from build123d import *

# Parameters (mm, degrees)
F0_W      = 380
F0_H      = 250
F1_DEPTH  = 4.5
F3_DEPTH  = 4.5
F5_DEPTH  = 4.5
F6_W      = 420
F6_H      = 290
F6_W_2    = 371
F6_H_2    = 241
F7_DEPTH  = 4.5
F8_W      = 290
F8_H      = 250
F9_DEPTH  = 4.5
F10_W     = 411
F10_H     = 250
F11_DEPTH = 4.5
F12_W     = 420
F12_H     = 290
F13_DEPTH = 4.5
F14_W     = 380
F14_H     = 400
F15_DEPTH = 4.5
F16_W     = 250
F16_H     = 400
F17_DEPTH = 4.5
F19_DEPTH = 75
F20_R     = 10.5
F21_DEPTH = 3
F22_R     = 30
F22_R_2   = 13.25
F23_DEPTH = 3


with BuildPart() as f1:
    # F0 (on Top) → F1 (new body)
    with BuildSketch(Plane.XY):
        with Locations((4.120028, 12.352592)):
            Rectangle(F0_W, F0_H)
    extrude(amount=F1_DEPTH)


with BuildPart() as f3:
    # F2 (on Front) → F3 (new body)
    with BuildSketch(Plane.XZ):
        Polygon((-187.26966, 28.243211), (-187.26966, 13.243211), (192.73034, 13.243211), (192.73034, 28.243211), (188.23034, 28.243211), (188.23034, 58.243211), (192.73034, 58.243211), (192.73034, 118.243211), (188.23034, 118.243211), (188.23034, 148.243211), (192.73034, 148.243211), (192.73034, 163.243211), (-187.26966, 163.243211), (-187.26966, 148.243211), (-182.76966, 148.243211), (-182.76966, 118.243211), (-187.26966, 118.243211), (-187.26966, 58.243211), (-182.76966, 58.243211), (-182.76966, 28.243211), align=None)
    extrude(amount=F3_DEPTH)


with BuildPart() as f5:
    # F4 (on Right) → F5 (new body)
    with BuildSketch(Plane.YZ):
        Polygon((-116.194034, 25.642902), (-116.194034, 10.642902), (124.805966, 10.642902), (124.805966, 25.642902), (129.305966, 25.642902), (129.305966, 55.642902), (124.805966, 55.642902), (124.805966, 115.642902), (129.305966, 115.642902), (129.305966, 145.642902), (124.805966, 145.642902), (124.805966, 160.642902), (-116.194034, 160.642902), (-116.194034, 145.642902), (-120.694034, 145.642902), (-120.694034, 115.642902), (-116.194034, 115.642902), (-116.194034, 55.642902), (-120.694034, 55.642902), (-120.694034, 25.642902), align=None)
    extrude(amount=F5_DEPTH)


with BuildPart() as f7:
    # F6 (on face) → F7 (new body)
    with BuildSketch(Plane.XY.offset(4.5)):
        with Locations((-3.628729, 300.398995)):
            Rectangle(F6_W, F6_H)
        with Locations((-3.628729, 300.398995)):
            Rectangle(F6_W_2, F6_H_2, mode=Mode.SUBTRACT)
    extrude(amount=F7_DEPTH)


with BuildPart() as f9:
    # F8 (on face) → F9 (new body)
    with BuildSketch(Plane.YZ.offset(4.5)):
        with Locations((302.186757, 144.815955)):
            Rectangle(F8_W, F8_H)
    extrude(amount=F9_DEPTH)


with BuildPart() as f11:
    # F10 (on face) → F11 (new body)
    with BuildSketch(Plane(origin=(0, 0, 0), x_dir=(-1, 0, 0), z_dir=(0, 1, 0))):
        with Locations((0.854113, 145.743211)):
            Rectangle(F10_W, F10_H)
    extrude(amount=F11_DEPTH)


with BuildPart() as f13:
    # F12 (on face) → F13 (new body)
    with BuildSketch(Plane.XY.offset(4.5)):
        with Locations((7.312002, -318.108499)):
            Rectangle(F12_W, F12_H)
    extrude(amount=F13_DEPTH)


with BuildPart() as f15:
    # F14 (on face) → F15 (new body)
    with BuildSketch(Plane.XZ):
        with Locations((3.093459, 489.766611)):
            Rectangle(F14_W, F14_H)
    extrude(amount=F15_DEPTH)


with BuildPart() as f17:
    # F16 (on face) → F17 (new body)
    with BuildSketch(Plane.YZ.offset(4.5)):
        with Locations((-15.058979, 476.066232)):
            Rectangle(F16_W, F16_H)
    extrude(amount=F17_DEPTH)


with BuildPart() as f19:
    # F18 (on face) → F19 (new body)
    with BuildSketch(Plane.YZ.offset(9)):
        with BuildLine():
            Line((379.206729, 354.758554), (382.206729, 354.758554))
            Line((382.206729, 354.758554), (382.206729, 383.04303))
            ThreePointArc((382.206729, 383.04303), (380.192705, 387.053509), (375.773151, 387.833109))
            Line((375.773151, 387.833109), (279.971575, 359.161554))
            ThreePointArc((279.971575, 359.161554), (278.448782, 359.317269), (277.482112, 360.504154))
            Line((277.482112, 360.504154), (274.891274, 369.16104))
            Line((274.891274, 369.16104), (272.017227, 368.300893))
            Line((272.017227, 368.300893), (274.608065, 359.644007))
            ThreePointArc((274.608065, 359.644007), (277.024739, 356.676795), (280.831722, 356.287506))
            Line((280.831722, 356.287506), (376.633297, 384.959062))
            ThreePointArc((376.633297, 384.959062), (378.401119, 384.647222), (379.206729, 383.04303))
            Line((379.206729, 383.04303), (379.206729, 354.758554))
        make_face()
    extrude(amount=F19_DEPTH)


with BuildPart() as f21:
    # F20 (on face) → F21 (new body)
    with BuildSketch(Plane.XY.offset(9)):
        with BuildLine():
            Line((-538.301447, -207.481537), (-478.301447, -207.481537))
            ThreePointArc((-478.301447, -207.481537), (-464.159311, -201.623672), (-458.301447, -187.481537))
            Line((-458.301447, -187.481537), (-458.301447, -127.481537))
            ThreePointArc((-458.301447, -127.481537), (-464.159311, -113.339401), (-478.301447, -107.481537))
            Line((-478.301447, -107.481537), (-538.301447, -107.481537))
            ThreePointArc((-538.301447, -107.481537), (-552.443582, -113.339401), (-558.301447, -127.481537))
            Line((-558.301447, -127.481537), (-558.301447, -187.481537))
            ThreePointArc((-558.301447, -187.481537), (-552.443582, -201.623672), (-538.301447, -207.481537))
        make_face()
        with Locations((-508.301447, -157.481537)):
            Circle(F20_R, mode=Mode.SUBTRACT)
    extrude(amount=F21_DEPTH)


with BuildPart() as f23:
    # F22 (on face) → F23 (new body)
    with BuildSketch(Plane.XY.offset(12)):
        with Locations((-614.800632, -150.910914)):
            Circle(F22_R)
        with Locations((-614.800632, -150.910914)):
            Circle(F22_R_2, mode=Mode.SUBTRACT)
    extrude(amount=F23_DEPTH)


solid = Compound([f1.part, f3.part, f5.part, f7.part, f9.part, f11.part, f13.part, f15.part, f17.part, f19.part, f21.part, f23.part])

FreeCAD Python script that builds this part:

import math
import FreeCAD as App
import Part
import Sketcher
from FreeCAD import Vector
Q = App.Units.Quantity

doc = App.newDocument("Part")
body = doc.addObject("PartDesign::Body", "Body")

# Sketch on XY plane
sketch1 = body.newObject("Sketcher::SketchObject", "Sketch")
sketch1.AttachmentSupport = (doc.getObject("XY_Plane"), [""])
sketch1.MapMode = "FlatFace"
sketch1.addGeometry([
    Part.LineSegment(Vector(-186, 137, 0), Vector(-186, -113, 0)),
    Part.LineSegment(Vector(-186, -113, 0), Vector(194, -113, 0)),
    Part.LineSegment(Vector(194, -113, 0), Vector(194, 137, 0)),
    Part.LineSegment(Vector(194, 137, 0), Vector(-186, 137, 0)),
], False)
sketch1.addConstraint([
    Sketcher.Constraint("Coincident", 0, 2, 1, 1),
    Sketcher.Constraint("Coincident", 1, 2, 2, 1),
    Sketcher.Constraint("Coincident", 2, 2, 3, 1),
    Sketcher.Constraint("Coincident", 3, 2, 0, 1),
    Sketcher.Constraint("Vertical", 0),
    Sketcher.Constraint("Horizontal", 1),
    Sketcher.Constraint("Vertical", 2),
    Sketcher.Constraint("Horizontal", 3),
    Sketcher.Constraint("DistanceX", 1, 1, 1, 2, Q("380 mm")),
    Sketcher.Constraint("DistanceY", 0, 2, 0, 1, Q("250 mm")),
    Sketcher.Constraint("DistanceY", 0, 2, -1, 1, Q("112.647408 mm")),
    Sketcher.Constraint("DistanceX", 0, 2, -1, 1, Q("185.879972 mm")),
])
pad1 = body.newObject("PartDesign::Pad", "Pad")
pad1.Profile = sketch1
pad1.Length = 4.5
body2 = doc.addObject("PartDesign::Body", "Body001")

# Sketch on XZ plane
sketch2 = body2.newObject("Sketcher::SketchObject", "Sketch001")
sketch2.AttachmentSupport = (doc.getObject("XZ_Plane001"), [""])
sketch2.MapMode = "FlatFace"
sketch2.addGeometry([
    Part.LineSegment(Vector(-187.3, 28.2, 0), Vector(-187.3, 13.2, 0)),  # 0
    Part.LineSegment(Vector(-187.3, 13.2, 0), Vector(192.7, 13.2, 0)),  # 1
    Part.LineSegment(Vector(192.7, 13.2, 0), Vector(192.7, 28.2, 0)),  # 2
    Part.LineSegment(Vector(192.7, 28.2, 0), Vector(188.2, 28.2, 0)),  # 3
    Part.LineSegment(Vector(188.2, 28.2, 0), Vector(188.2, 58.2, 0)),  # 4
    Part.LineSegment(Vector(188.2, 58.2, 0), Vector(192.7, 58.2, 0)),  # 5
    Part.LineSegment(Vector(192.7, 58.2, 0), Vector(192.7, 118.2, 0)),  # 6
    Part.LineSegment(Vector(192.7, 118.2, 0), Vector(188.2, 118.2, 0)),  # 7
    Part.LineSegment(Vector(188.2, 118.2, 0), Vector(188.2, 148.2, 0)),  # 8
    Part.LineSegment(Vector(188.2, 148.2, 0), Vector(192.7, 148.2, 0)),  # 9
    Part.LineSegment(Vector(192.7, 148.2, 0), Vector(192.7, 163.2, 0)),  # 10
    Part.LineSegment(Vector(192.7, 163.2, 0), Vector(-187.3, 163.2, 0)),  # 11
    Part.LineSegment(Vector(-187.3, 163.2, 0), Vector(-187.3, 148.2, 0)),  # 12
    Part.LineSegment(Vector(-187.3, 148.2, 0), Vector(-182.8, 148.2, 0)),  # 13
    Part.LineSegment(Vector(-182.8, 148.2, 0), Vector(-182.8, 118.2, 0)),  # 14
    Part.LineSegment(Vector(-182.8, 118.2, 0), Vector(-187.3, 118.2, 0)),  # 15
    Part.LineSegment(Vector(-187.3, 118.2, 0), Vector(-187.3, 58.2, 0)),  # 16
    Part.LineSegment(Vector(-187.3, 58.2, 0), Vector(-182.8, 58.2, 0)),  # 17
    Part.LineSegment(Vector(-182.8, 58.2, 0), Vector(-182.8, 28.2, 0)),  # 18
    Part.LineSegment(Vector(-182.8, 28.2, 0), Vector(-187.3, 28.2, 0)),  # 19
], False)
sketch2.addConstraint([
    Sketcher.Constraint("Coincident", 0, 2, 1, 1),
    Sketcher.Constraint("Coincident", 1, 2, 2, 1),
    Sketcher.Constraint("Coincident", 2, 2, 3, 1),
    Sketcher.Constraint("Coincident", 3, 2, 4, 1),
    Sketcher.Constraint("Coincident", 4, 2, 5, 1),
    Sketcher.Constraint("Coincident", 5, 2, 6, 1),
    Sketcher.Constraint("Coincident", 6, 2, 7, 1),
    Sketcher.Constraint("Coincident", 7, 2, 8, 1),
    Sketcher.Constraint("Coincident", 8, 2, 9, 1),
    Sketcher.Constraint("Coincident", 9, 2, 10, 1),
    Sketcher.Constraint("Coincident", 10, 2, 11, 1),
    Sketcher.Constraint("Coincident", 11, 2, 12, 1),
    Sketcher.Constraint("Coincident", 12, 2, 13, 1),
    Sketcher.Constraint("Coincident", 13, 2, 14, 1),
    Sketcher.Constraint("Coincident", 14, 2, 15, 1),
    Sketcher.Constraint("Coincident", 15, 2, 16, 1),
    Sketcher.Constraint("Coincident", 16, 2, 17, 1),
    Sketcher.Constraint("Coincident", 17, 2, 18, 1),
    Sketcher.Constraint("Coincident", 18, 2, 19, 1),
    Sketcher.Constraint("Coincident", 19, 2, 0, 1),
    Sketcher.Constraint("Vertical", 0),
    Sketcher.Constraint("Horizontal", 1),
    Sketcher.Constraint("Vertical", 2),
    Sketcher.Constraint("Horizontal", 3),
    Sketcher.Constraint("Vertical", 4),
    Sketcher.Constraint("Horizontal", 5),
    Sketcher.Constraint("Vertical", 6),
    Sketcher.Constraint("Horizontal", 7),
    Sketcher.Constraint("Vertical", 8),
    Sketcher.Constraint("Horizontal", 9),
    Sketcher.Constraint("Vertical", 10),
    Sketcher.Constraint("Horizontal", 11),
    Sketcher.Constraint("Vertical", 12),
    Sketcher.Constraint("Horizontal", 13),
    Sketcher.Constraint("Vertical", 14),
    Sketcher.Constraint("Horizontal", 15),
    Sketcher.Constraint("Vertical", 16),
    Sketcher.Constraint("Horizontal", 17),
    Sketcher.Constraint("Vertical", 18),
    Sketcher.Constraint("Horizontal", 19),
    Sketcher.Constraint("Horizontal", 9, 2, 12, 2),
    Sketcher.Constraint("Horizontal", 7, 2, 14, 2),
    Sketcher.Constraint("Horizontal", 5, 2, 16, 2),
    Sketcher.Constraint("Horizontal", 3, 2, 18, 2),
    Sketcher.Constraint("Vertical", 2, 2, 5, 2),
    Sketcher.Constraint("Vertical", 4, 2, 7, 2),
    Sketcher.Constraint("Vertical", 6, 2, 9, 2),
    Sketcher.Constraint("Vertical", 0, 2, 11, 2),
    Sketcher.Constraint("Vertical", 12, 2, 15, 2),
    Sketcher.Constraint("Vertical", 14, 2, 17, 2),
    Sketcher.Constraint("Equal", 9, 13),
    Sketcher.Constraint("Equal", 4, 8),
    Sketcher.Constraint("Equal", 2, 10),
    Sketcher.Constraint("DistanceX", 1, 1, 1, 2, Q("380 mm")),
    Sketcher.Constraint("DistanceY", 0, 2, 0, 1, Q("15 mm")),
    Sketcher.Constraint("DistanceY", 4, 1, 4, 2, Q("30 mm")),
    Sketcher.Constraint("DistanceY", 6, 1, 6, 2, Q("60 mm")),
    Sketcher.Constraint("DistanceX", 3, 2, 3, 1, Q("4.5 mm")),
    Sketcher.Constraint("DistanceX", 0, 2, -1, 1, Q("187.26966 mm")),
    Sketcher.Constraint("DistanceY", -1, 1, 0, 2, Q("13.243211 mm")),
])
pad2 = body2.newObject("PartDesign::Pad", "Pad001")
pad2.Profile = sketch2
pad2.Length = 4.5
body3 = doc.addObject("PartDesign::Body", "Body002")

# Sketch on YZ plane
sketch3 = body3.newObject("Sketcher::SketchObject", "Sketch002")
sketch3.AttachmentSupport = (doc.getObject("YZ_Plane002"), [""])
sketch3.MapMode = "FlatFace"
sketch3.addGeometry([
    Part.LineSegment(Vector(-116.2, 25.6, 0), Vector(-116.2, 10.6, 0)),  # 0
    Part.LineSegment(Vector(-116.2, 10.6, 0), Vector(124.8, 10.6, 0)),  # 1
    Part.LineSegment(Vector(124.8, 10.6, 0), Vector(124.8, 25.6, 0)),  # 2
    Part.LineSegment(Vector(124.8, 25.6, 0), Vector(129.3, 25.6, 0)),  # 3
    Part.LineSegment(Vector(129.3, 25.6, 0), Vector(129.3, 55.6, 0)),  # 4
    Part.LineSegment(Vector(129.3, 55.6, 0), Vector(124.8, 55.6, 0)),  # 5
    Part.LineSegment(Vector(124.8, 55.6, 0), Vector(124.8, 115.6, 0)),  # 6
    Part.LineSegment(Vector(124.8, 115.6, 0), Vector(129.3, 115.6, 0)),  # 7
    Part.LineSegment(Vector(129.3, 115.6, 0), Vector(129.3, 145.6, 0)),  # 8
    Part.LineSegment(Vector(129.3, 145.6, 0), Vector(124.8, 145.6, 0)),  # 9
    Part.LineSegment(Vector(124.8, 145.6, 0), Vector(124.8, 160.6, 0)),  # 10
    Part.LineSegment(Vector(124.8, 160.6, 0), Vector(-116.2, 160.6, 0)),  # 11
    Part.LineSegment(Vector(-116.2, 160.6, 0), Vector(-116.2, 145.6, 0)),  # 12
    Part.LineSegment(Vector(-116.2, 145.6, 0), Vector(-120.7, 145.6, 0)),  # 13
    Part.LineSegment(Vector(-120.7, 145.6, 0), Vector(-120.7, 115.6, 0)),  # 14
    Part.LineSegment(Vector(-120.7, 115.6, 0), Vector(-116.2, 115.6, 0)),  # 15
    Part.LineSegment(Vector(-116.2, 115.6, 0), Vector(-116.2, 55.6, 0)),  # 16
    Part.LineSegment(Vector(-116.2, 55.6, 0), Vector(-120.7, 55.6, 0)),  # 17
    Part.LineSegment(Vector(-120.7, 55.6, 0), Vector(-120.7, 25.6, 0)),  # 18
    Part.LineSegment(Vector(-120.7, 25.6, 0), Vector(-116.2, 25.6, 0)),  # 19
], False)
sketch3.addConstraint([
    Sketcher.Constraint("Coincident", 0, 2, 1, 1),
    Sketcher.Constraint("Coincident", 1, 2, 2, 1),
    Sketcher.Constraint("Coincident", 2, 2, 3, 1),
    Sketcher.Constraint("Coincident", 3, 2, 4, 1),
    Sketcher.Constraint("Coincident", 4, 2, 5, 1),
    Sketcher.Constraint("Coincident", 5, 2, 6, 1),
    Sketcher.Constraint("Coincident", 6, 2, 7, 1),
    Sketcher.Constraint("Coincident", 7, 2, 8, 1),
    Sketcher.Constraint("Coincident", 8, 2, 9, 1),
    Sketcher.Constraint("Coincident", 9, 2, 10, 1),
    Sketcher.Constraint("Coincident", 10, 2, 11, 1),
    Sketcher.Constraint("Coincident", 11, 2, 12, 1),
    Sketcher.Constraint("Coincident", 12, 2, 13, 1),
    Sketcher.Constraint("Coincident", 13, 2, 14, 1),
    Sketcher.Constraint("Coincident", 14, 2, 15, 1),
    Sketcher.Constraint("Coincident", 15, 2, 16, 1),
    Sketcher.Constraint("Coincident", 16, 2, 17, 1),
    Sketcher.Constraint("Coincident", 17, 2, 18, 1),
    Sketcher.Constraint("Coincident", 18, 2, 19, 1),
    Sketcher.Constraint("Coincident", 19, 2, 0, 1),
    Sketcher.Constraint("Vertical", 0),
    Sketcher.Constraint("Horizontal", 1),
    Sketcher.Constraint("Vertical", 2),
    Sketcher.Constraint("Horizontal", 3),
    Sketcher.Constraint("Vertical", 4),
    Sketcher.Constraint("Horizontal", 5),
    Sketcher.Constraint("Vertical", 6),
    Sketcher.Constraint("Horizontal", 7),
    Sketcher.Constraint("Vertical", 8),
    Sketcher.Constraint("Horizontal", 9),
    Sketcher.Constraint("Vertical", 10),
    Sketcher.Constraint("Horizontal", 11),
    Sketcher.Constraint("Vertical", 12),
    Sketcher.Constraint("Horizontal", 13),
    Sketcher.Constraint("Vertical", 14),
    Sketcher.Constraint("Horizontal", 15),
    Sketcher.Constraint("Vertical", 16),
    Sketcher.Constraint("Horizontal", 17),
    Sketcher.Constraint("Vertical", 18),
    Sketcher.Constraint("Horizontal", 19),
    Sketcher.Constraint("Horizontal", 9, 2, 12, 2),
    Sketcher.Constraint("Horizontal", 7, 2, 14, 2),
    Sketcher.Constraint("Horizontal", 5, 2, 16, 2),
    Sketcher.Constraint("Horizontal", 3, 2, 18, 2),
    Sketcher.Constraint("Vertical", 2, 2, 5, 2),
    Sketcher.Constraint("Vertical", 4, 2, 7, 2),
    Sketcher.Constraint("Vertical", 6, 2, 9, 2),
    Sketcher.Constraint("Vertical", 0, 2, 11, 2),
    Sketcher.Constraint("Vertical", 12, 2, 15, 2),
    Sketcher.Constraint("Vertical", 14, 2, 17, 2),
    Sketcher.Constraint("Equal", 9, 13),
    Sketcher.Constraint("Equal", 4, 8),
    Sketcher.Constraint("Equal", 2, 10),
    Sketcher.Constraint("DistanceX", 1, 1, 1, 2, Q("241 mm")),
    Sketcher.Constraint("DistanceY", 0, 2, 0, 1, Q("15 mm")),
    Sketcher.Constraint("DistanceY", 4, 1, 4, 2, Q("30 mm")),
    Sketcher.Constraint("DistanceY", 6, 1, 6, 2, Q("60 mm")),
    Sketcher.Constraint("DistanceX", 3, 1, 3, 2, Q("4.5 mm")),
    Sketcher.Constraint("DistanceY", -1, 1, 2, 2, Q("25.642902 mm")),
    Sketcher.Constraint("DistanceX", 0, 2, -1, 1, Q("116.194034 mm")),
])
pad3 = body3.newObject("PartDesign::Pad", "Pad002")
pad3.Profile = sketch3
pad3.Length = 4.5
body4 = doc.addObject("PartDesign::Body", "Body003")

# Sketch on XY plane
sketch4 = body4.newObject("Sketcher::SketchObject", "Sketch003")
sketch4.AttachmentSupport = (doc.getObject("XY_Plane003"), [""])
sketch4.MapMode = "FlatFace"
sketch4.AttachmentOffset = App.Placement(Vector(0, 0, 4.5), App.Rotation())
sketch4.addGeometry([
    Part.LineSegment(Vector(-214, 445, 0), Vector(-214, 155, 0)),  # 0
    Part.LineSegment(Vector(-214, 155, 0), Vector(206, 155, 0)),  # 1
    Part.LineSegment(Vector(206, 155, 0), Vector(206, 445, 0)),  # 2
    Part.LineSegment(Vector(206, 445, 0), Vector(-214, 445, 0)),  # 3
    Part.LineSegment(Vector(182, 180, 0), Vector(-189, 180, 0)),  # 4
    Part.LineSegment(Vector(-189, 180, 0), Vector(-189, 421, 0)),  # 5
    Part.LineSegment(Vector(-189, 421, 0), Vector(182, 421, 0)),  # 6
    Part.LineSegment(Vector(182, 421, 0), Vector(182, 180, 0)),  # 7
], False)
sketch4.addConstraint([
    Sketcher.Constraint("Coincident", 0, 2, 1, 1),
    Sketcher.Constraint("Coincident", 1, 2, 2, 1),
    Sketcher.Constraint("Coincident", 2, 2, 3, 1),
    Sketcher.Constraint("Coincident", 3, 2, 0, 1),
    Sketcher.Constraint("Coincident", 4, 2, 5, 1),
    Sketcher.Constraint("Coincident", 5, 2, 6, 1),
    Sketcher.Constraint("Coincident", 6, 2, 7, 1),
    Sketcher.Constraint("Coincident", 7, 2, 4, 1),
    Sketcher.Constraint("Vertical", 0),
    Sketcher.Constraint("Horizontal", 1),
    Sketcher.Constraint("Vertical", 2),
    Sketcher.Constraint("Horizontal", 3),
    Sketcher.Constraint("Horizontal", 4),
    Sketcher.Constraint("Vertical", 5),
    Sketcher.Constraint("Horizontal", 6),
    Sketcher.Constraint("Vertical", 7),
    Sketcher.Constraint("DistanceX", 1, 1, 1, 2, Q("420 mm")),
    Sketcher.Constraint("DistanceX", 4, 2, 4, 1, Q("371 mm")),
    Sketcher.Constraint("DistanceY", 0, 2, 0, 1, Q("290 mm")),
    Sketcher.Constraint("DistanceY", 5, 1, 5, 2, Q("241 mm")),
    Sketcher.Constraint("DistanceX", 0, 2, 4, 2, Q("24.5 mm")),
    Sketcher.Constraint("DistanceY", 0, 2, 4, 2, Q("24.5 mm")),
    Sketcher.Constraint("DistanceX", 0, 2, -1, 1, Q("213.628729 mm")),
    Sketcher.Constraint("DistanceY", -1, 1, 0, 2, Q("155.398995 mm")),
])
pad4 = body4.newObject("PartDesign::Pad", "Pad003")
pad4.Profile = sketch4
pad4.Length = 4.5
body5 = doc.addObject("PartDesign::Body", "Body004")

# Sketch on YZ plane
sketch5 = body5.newObject("Sketcher::SketchObject", "Sketch004")
sketch5.AttachmentSupport = (doc.getObject("YZ_Plane004"), [""])
sketch5.MapMode = "FlatFace"
sketch5.AttachmentOffset = App.Placement(Vector(0, 0, 4.5), App.Rotation())
sketch5.addGeometry([
    Part.LineSegment(Vector(157, 270, 0), Vector(157, 20, 0)),
    Part.LineSegment(Vector(157, 20, 0), Vector(447, 20, 0)),
    Part.LineSegment(Vector(447, 20, 0), Vector(447, 270, 0)),
    Part.LineSegment(Vector(447, 270, 0), Vector(157, 270, 0)),
], False)
sketch5.addConstraint([
    Sketcher.Constraint("Coincident", 0, 2, 1, 1),
    Sketcher.Constraint("Coincident", 1, 2, 2, 1),
    Sketcher.Constraint("Coincident", 2, 2, 3, 1),
    Sketcher.Constraint("Coincident", 3, 2, 0, 1),
    Sketcher.Constraint("Vertical", 0),
    Sketcher.Constraint("Horizontal", 1),
    Sketcher.Constraint("Vertical", 2),
    Sketcher.Constraint("Horizontal", 3),
    Sketcher.Constraint("DistanceX", 1, 1, 1, 2, Q("290 mm")),
    Sketcher.Constraint("DistanceY", 0, 2, 0, 1, Q("250 mm")),
    Sketcher.Constraint("DistanceX", -1, 1, 0, 2, Q("157.186757 mm")),
    Sketcher.Constraint("DistanceY", -1, 1, 0, 2, Q("19.815955 mm")),
])
pad5 = body5.newObject("PartDesign::Pad", "Pad004")
pad5.Profile = sketch5
pad5.Length = 4.5
body6 = doc.addObject("PartDesign::Body", "Body005")

# Sketch on XZ plane
sketch6 = body6.newObject("Sketcher::SketchObject", "Sketch005")
sketch6.AttachmentSupport = (doc.getObject("XZ_Plane005"), [""])
sketch6.MapMode = "FlatFace"
sketch6.addGeometry([
    Part.LineSegment(Vector(205, 271, 0), Vector(205, 21, 0)),
    Part.LineSegment(Vector(205, 21, 0), Vector(-206, 21, 0)),
    Part.LineSegment(Vector(-206, 21, 0), Vector(-206, 271, 0)),
    Part.LineSegment(Vector(-206, 271, 0), Vector(205, 271, 0)),
], False)
sketch6.addConstraint([
    Sketcher.Constraint("Coincident", 0, 2, 1, 1),
    Sketcher.Constraint("Coincident", 1, 2, 2, 1),
    Sketcher.Constraint("Coincident", 2, 2, 3, 1),
    Sketcher.Constraint("Coincident", 3, 2, 0, 1),
    Sketcher.Constraint("Vertical", 0),
    Sketcher.Constraint("Horizontal", 1),
    Sketcher.Constraint("Vertical", 2),
    Sketcher.Constraint("Horizontal", 3),
    Sketcher.Constraint("DistanceX", 1, 2, 1, 1, Q("411 mm")),
    Sketcher.Constraint("DistanceY", 0, 2, 0, 1, Q("250 mm")),
    Sketcher.Constraint("DistanceY", -1, 1, 0, 2, Q("20.743211 mm")),
    Sketcher.Constraint("DistanceX", -1, 1, 0, 2, Q("204.645887 mm")),
])
pad6 = body6.newObject("PartDesign::Pad", "Pad005")
pad6.Profile = sketch6
pad6.Length = 4.5
pad6.Reversed = True
body7 = doc.addObject("PartDesign::Body", "Body006")

# Sketch on XY plane
sketch7 = body7.newObject("Sketcher::SketchObject", "Sketch006")
sketch7.AttachmentSupport = (doc.getObject("XY_Plane006"), [""])
sketch7.MapMode = "FlatFace"
sketch7.AttachmentOffset = App.Placement(Vector(0, 0, 4.5), App.Rotation())
sketch7.addGeometry([
    Part.LineSegment(Vector(-203, -173, 0), Vector(-203, -463, 0)),
    Part.LineSegment(Vector(-203, -463, 0), Vector(217, -463, 0)),
    Part.LineSegment(Vector(217, -463, 0), Vector(217, -173, 0)),
    Part.LineSegment(Vector(217, -173, 0), Vector(-203, -173, 0)),
], False)
sketch7.addConstraint([
    Sketcher.Constraint("Coincident", 0, 2, 1, 1),
    Sketcher.Constraint("Coincident", 1, 2, 2, 1),
    Sketcher.Constraint("Coincident", 2, 2, 3, 1),
    Sketcher.Constraint("Coincident", 3, 2, 0, 1),
    Sketcher.Constraint("Vertical", 0),
    Sketcher.Constraint("Horizontal", 1),
    Sketcher.Constraint("Vertical", 2),
    Sketcher.Constraint("Horizontal", 3),
    Sketcher.Constraint("DistanceX", 1, 1, 1, 2, Q("420 mm")),
    Sketcher.Constraint("DistanceY", 0, 2, 0, 1, Q("290 mm")),
    Sketcher.Constraint("DistanceX", 0, 2, -1, 1, Q("202.687998 mm")),
    Sketcher.Constraint("DistanceY", 0, 2, -1, 1, Q("463.108499 mm")),
])
pad7 = body7.newObject("PartDesign::Pad", "Pad006")
pad7.Profile = sketch7
pad7.Length = 4.5
body8 = doc.addObject("PartDesign::Body", "Body007")

# Sketch on XZ plane
sketch8 = body8.newObject("Sketcher::SketchObject", "Sketch007")
sketch8.AttachmentSupport = (doc.getObject("XZ_Plane007"), [""])
sketch8.MapMode = "FlatFace"
sketch8.addGeometry([
    Part.LineSegment(Vector(-187, 690, 0), Vector(-187, 290, 0)),
    Part.LineSegment(Vector(-187, 290, 0), Vector(193, 290, 0)),
    Part.LineSegment(Vector(193, 290, 0), Vector(193, 690, 0)),
    Part.LineSegment(Vector(193, 690, 0), Vector(-187, 690, 0)),
], False)
sketch8.addConstraint([
    Sketcher.Constraint("Coincident", 0, 2, 1, 1),
    Sketcher.Constraint("Coincident", 1, 2, 2, 1),
    Sketcher.Constraint("Coincident", 2, 2, 3, 1),
    Sketcher.Constraint("Coincident", 3, 2, 0, 1),
    Sketcher.Constraint("Vertical", 0),
    Sketcher.Constraint("Horizontal", 1),
    Sketcher.Constraint("Vertical", 2),
    Sketcher.Constraint("Horizontal", 3),
    Sketcher.Constraint("DistanceX", 1, 1, 1, 2, Q("380 mm")),
    Sketcher.Constraint("DistanceY", 0, 2, 0, 1, Q("400 mm")),
    Sketcher.Constraint("DistanceX", 0, 2, -1, 1, Q("186.906541 mm")),
    Sketcher.Constraint("DistanceY", -1, 1, 0, 2, Q("289.766611 mm")),
])
pad8 = body8.newObject("PartDesign::Pad", "Pad007")
pad8.Profile = sketch8
pad8.Length = 4.5
body9 = doc.addObject("PartDesign::Body", "Body008")

# Sketch on YZ plane
sketch9 = body9.newObject("Sketcher::SketchObject", "Sketch008")
sketch9.AttachmentSupport = (doc.getObject("YZ_Plane008"), [""])
sketch9.MapMode = "FlatFace"
sketch9.AttachmentOffset = App.Placement(Vector(0, 0, 4.5), App.Rotation())
sketch9.addGeometry([
    Part.LineSegment(Vector(-140, 676, 0), Vector(-140, 276, 0)),
    Part.LineSegment(Vector(-140, 276, 0), Vector(110, 276, 0)),
    Part.LineSegment(Vector(110, 276, 0), Vector(110, 676, 0)),
    Part.LineSegment(Vector(110, 676, 0), Vector(-140, 676, 0)),
], False)
sketch9.addConstraint([
    Sketcher.Constraint("Coincident", 0, 2, 1, 1),
    Sketcher.Constraint("Coincident", 1, 2, 2, 1),
    Sketcher.Constraint("Coincident", 2, 2, 3, 1),
    Sketcher.Constraint("Coincident", 3, 2, 0, 1),
    Sketcher.Constraint("Vertical", 0),
    Sketcher.Constraint("Horizontal", 1),
    Sketcher.Constraint("Vertical", 2),
    Sketcher.Constraint("Horizontal", 3),
    Sketcher.Constraint("DistanceX", 1, 1, 1, 2, Q("250 mm")),
    Sketcher.Constraint("DistanceY", 0, 2, 0, 1, Q("400 mm")),
    Sketcher.Constraint("DistanceX", 0, 2, -1, 1, Q("140.058979 mm")),
    Sketcher.Constraint("DistanceY", -1, 1, 0, 2, Q("276.066232 mm")),
])
pad9 = body9.newObject("PartDesign::Pad", "Pad008")
pad9.Profile = sketch9
pad9.Length = 4.5
body10 = doc.addObject("PartDesign::Body", "Body009")

# Sketch on YZ plane
sketch10 = body10.newObject("Sketcher::SketchObject", "Sketch009")
sketch10.AttachmentSupport = (doc.getObject("YZ_Plane009"), [""])
sketch10.MapMode = "FlatFace"
sketch10.AttachmentOffset = App.Placement(Vector(0, 0, 9), App.Rotation())
sketch10.addGeometry([
    Part.LineSegment(Vector(379.2, 354.8, 0), Vector(382.2, 354.8, 0)),  # 0
    Part.LineSegment(Vector(382.2, 354.8, 0), Vector(382.2, 383, 0)),  # 1
    Part.ArcOfCircle(Part.Circle(Vector(377.2, 383, 0), Vector(0, 0, 1), 5), math.radians(0), math.radians(107)),  # 2
    Part.LineSegment(Vector(375.8, 387.8, 0), Vector(280, 359.2, 0)),  # 3
    Part.ArcOfCircle(Part.Circle(Vector(279.4, 361.1, 0), Vector(0, 0, 1), 2), math.radians(-163), math.radians(-73)),  # 4
    Part.LineSegment(Vector(277.5, 360.5, 0), Vector(274.9, 369.2, 0)),  # 5
    Part.LineSegment(Vector(274.9, 369.2, 0), Vector(272, 368.3, 0)),  # 6
    Part.LineSegment(Vector(272, 368.3, 0), Vector(274.6, 359.6, 0)),  # 7
    Part.ArcOfCircle(Part.Circle(Vector(279.4, 361.1, 0), Vector(0, 0, 1), 5), math.radians(-163), math.radians(-73)),  # 8
    Part.LineSegment(Vector(280.8, 356.3, 0), Vector(376.6, 385, 0)),  # 9
    Part.ArcOfCircle(Part.Circle(Vector(377.2, 383, 0), Vector(0, 0, 1), 2), math.radians(0), math.radians(107)),  # 10
    Part.LineSegment(Vector(379.2, 383, 0), Vector(379.2, 354.8, 0)),  # 11
], False)
sketch10.addConstraint([
    Sketcher.Constraint("Coincident", 0, 2, 1, 1),
    Sketcher.Constraint("Tangent", 1, 2, 2, 1),
    Sketcher.Constraint("Tangent", 2, 2, 3, 1),
    Sketcher.Constraint("Tangent", 3, 2, 4, 2),
    Sketcher.Constraint("Tangent", 4, 1, 5, 1),
    Sketcher.Constraint("Coincident", 5, 2, 6, 1),
    Sketcher.Constraint("Coincident", 6, 2, 7, 1),
    Sketcher.Constraint("Tangent", 7, 2, 8, 1),
    Sketcher.Constraint("Tangent", 8, 2, 9, 1),
    Sketcher.Constraint("Tangent", 9, 2, 10, 2),
    Sketcher.Constraint("Tangent", 10, 1, 11, 1),
    Sketcher.Constraint("Coincident", 11, 2, 0, 1),
    Sketcher.Constraint("Horizontal", 0),
    Sketcher.Constraint("Vertical", 1),
    Sketcher.Constraint("Vertical", 11),
    Sketcher.Constraint("Coincident", 8, 3, 4, 3),
    Sketcher.Constraint("Coincident", 10, 3, 2, 3),
    Sketcher.Constraint("Equal", 2, 8),
    Sketcher.Constraint("Equal", 4, 10),
    Sketcher.Constraint("Perpendicular", 3, 5),
    Sketcher.Constraint("Perpendicular", 5, 6),
    Sketcher.Constraint("Perpendicular", 6, 7),
    Sketcher.Constraint("Radius", 2, Q("5.000001 mm")),
    Sketcher.Constraint("Radius", 4, Q("1.999999 mm")),
    Sketcher.Constraint("Distance", 3, Q("100 mm")),
    Sketcher.Constraint("DistanceY", 3, 2, 4, 1, Q("1.3426 mm")),
    Sketcher.Constraint("DistanceX", 5, 2, 3, 2, Q("5.080301 mm")),
    Sketcher.Constraint("DistanceY", 1, 1, 1, 2, Q("28.284476 mm")),
    Sketcher.Constraint("DistanceY", -1, 1, 2, 3, Q("383.043029 mm")),
    Sketcher.Constraint("DistanceX", -1, 1, 0, 2, Q("382.206729 mm")),
])
pad10 = body10.newObject("PartDesign::Pad", "Pad009")
pad10.Profile = sketch10
pad10.Length = 75
body11 = doc.addObject("PartDesign::Body", "Body010")

# Sketch on XY plane
sketch11 = body11.newObject("Sketcher::SketchObject", "Sketch010")
sketch11.AttachmentSupport = (doc.getObject("XY_Plane010"), [""])
sketch11.MapMode = "FlatFace"
sketch11.AttachmentOffset = App.Placement(Vector(0, 0, 9), App.Rotation())
sketch11.addGeometry([
    Part.LineSegment(Vector(-538, -207, 0), Vector(-478, -207, 0)),  # 0
    Part.ArcOfCircle(Part.Circle(Vector(-478, -187, 0), Vector(0, 0, 1), 20), math.radians(-90), math.radians(0)),  # 1
    Part.LineSegment(Vector(-458, -187, 0), Vector(-458, -127, 0)),  # 2
    Part.ArcOfCircle(Part.Circle(Vector(-478, -127, 0), Vector(0, 0, 1), 20), math.radians(0), math.radians(90)),  # 3
    Part.LineSegment(Vector(-478, -107, 0), Vector(-538, -107, 0)),  # 4
    Part.ArcOfCircle(Part.Circle(Vector(-538, -127, 0), Vector(0, 0, 1), 20), math.radians(90), math.radians(180)),  # 5
    Part.LineSegment(Vector(-558, -127, 0), Vector(-558, -187, 0)),  # 6
    Part.ArcOfCircle(Part.Circle(Vector(-538, -187, 0), Vector(0, 0, 1), 20), math.radians(-180), math.radians(-90)),  # 7
    Part.Circle(Vector(-508, -157, 0), Vector(0, 0, 1), 10),  # 8
], False)
sketch11.addConstraint([
    Sketcher.Constraint("Tangent", 0, 2, 1, 1),
    Sketcher.Constraint("Tangent", 1, 2, 2, 1),
    Sketcher.Constraint("Tangent", 2, 2, 3, 1),
    Sketcher.Constraint("Tangent", 3, 2, 4, 1),
    Sketcher.Constraint("Tangent", 4, 2, 5, 1),
    Sketcher.Constraint("Tangent", 5, 2, 6, 1),
    Sketcher.Constraint("Tangent", 6, 2, 7, 1),
    Sketcher.Constraint("Tangent", 7, 2, 0, 1),
    Sketcher.Constraint("Horizontal", 0),
    Sketcher.Constraint("Vertical", 2),
    Sketcher.Constraint("Horizontal", 4),
    Sketcher.Constraint("Vertical", 6),
    Sketcher.Constraint("Equal", 1, 3),
    Sketcher.Constraint("Equal", 3, 5),
    Sketcher.Constraint("Equal", 5, 7),
    Sketcher.Constraint("Equal", 4, 2),
    Sketcher.Constraint("Diameter", 8, Q("21 mm")),
    Sketcher.Constraint("Radius", 1, Q("20 mm")),
    Sketcher.Constraint("DistanceX", 0, 1, 0, 2, Q("60 mm")),
    Sketcher.Constraint("DistanceX", 8, 3, 1, 3, Q("30 mm")),
    Sketcher.Constraint("DistanceY", 1, 3, 8, 3, Q("30 mm")),
    Sketcher.Constraint("DistanceX", 1, 3, -1, 1, Q("478.301447 mm")),
    Sketcher.Constraint("DistanceY", 1, 3, -1, 1, Q("187.481537 mm")),
])
pad11 = body11.newObject("PartDesign::Pad", "Pad010")
pad11.Profile = sketch11
pad11.Length = 3
body12 = doc.addObject("PartDesign::Body", "Body011")

# Sketch on XY plane
sketch12 = body12.newObject("Sketcher::SketchObject", "Sketch011")
sketch12.AttachmentSupport = (doc.getObject("XY_Plane011"), [""])
sketch12.MapMode = "FlatFace"
sketch12.AttachmentOffset = App.Placement(Vector(0, 0, 12), App.Rotation())
sketch12.addGeometry([
    Part.Circle(Vector(-615, -151, 0), Vector(0, 0, 1), 30),
    Part.Circle(Vector(-615, -151, 0), Vector(0, 0, 1), 13),
], False)
sketch12.addConstraint([
    Sketcher.Constraint("Coincident", 1, 3, 0, 3),
    Sketcher.Constraint("Diameter", 0, Q("60 mm")),
    Sketcher.Constraint("Diameter", 1, Q("26.5 mm")),
    Sketcher.Constraint("DistanceX", 0, 3, -1, 1, Q("614.800632 mm")),
    Sketcher.Constraint("DistanceY", 0, 3, -1, 1, Q("150.910914 mm")),
])
pad12 = body12.newObject("PartDesign::Pad", "Pad011")
pad12.Profile = sketch12
pad12.Length = 3

doc.recompute()
